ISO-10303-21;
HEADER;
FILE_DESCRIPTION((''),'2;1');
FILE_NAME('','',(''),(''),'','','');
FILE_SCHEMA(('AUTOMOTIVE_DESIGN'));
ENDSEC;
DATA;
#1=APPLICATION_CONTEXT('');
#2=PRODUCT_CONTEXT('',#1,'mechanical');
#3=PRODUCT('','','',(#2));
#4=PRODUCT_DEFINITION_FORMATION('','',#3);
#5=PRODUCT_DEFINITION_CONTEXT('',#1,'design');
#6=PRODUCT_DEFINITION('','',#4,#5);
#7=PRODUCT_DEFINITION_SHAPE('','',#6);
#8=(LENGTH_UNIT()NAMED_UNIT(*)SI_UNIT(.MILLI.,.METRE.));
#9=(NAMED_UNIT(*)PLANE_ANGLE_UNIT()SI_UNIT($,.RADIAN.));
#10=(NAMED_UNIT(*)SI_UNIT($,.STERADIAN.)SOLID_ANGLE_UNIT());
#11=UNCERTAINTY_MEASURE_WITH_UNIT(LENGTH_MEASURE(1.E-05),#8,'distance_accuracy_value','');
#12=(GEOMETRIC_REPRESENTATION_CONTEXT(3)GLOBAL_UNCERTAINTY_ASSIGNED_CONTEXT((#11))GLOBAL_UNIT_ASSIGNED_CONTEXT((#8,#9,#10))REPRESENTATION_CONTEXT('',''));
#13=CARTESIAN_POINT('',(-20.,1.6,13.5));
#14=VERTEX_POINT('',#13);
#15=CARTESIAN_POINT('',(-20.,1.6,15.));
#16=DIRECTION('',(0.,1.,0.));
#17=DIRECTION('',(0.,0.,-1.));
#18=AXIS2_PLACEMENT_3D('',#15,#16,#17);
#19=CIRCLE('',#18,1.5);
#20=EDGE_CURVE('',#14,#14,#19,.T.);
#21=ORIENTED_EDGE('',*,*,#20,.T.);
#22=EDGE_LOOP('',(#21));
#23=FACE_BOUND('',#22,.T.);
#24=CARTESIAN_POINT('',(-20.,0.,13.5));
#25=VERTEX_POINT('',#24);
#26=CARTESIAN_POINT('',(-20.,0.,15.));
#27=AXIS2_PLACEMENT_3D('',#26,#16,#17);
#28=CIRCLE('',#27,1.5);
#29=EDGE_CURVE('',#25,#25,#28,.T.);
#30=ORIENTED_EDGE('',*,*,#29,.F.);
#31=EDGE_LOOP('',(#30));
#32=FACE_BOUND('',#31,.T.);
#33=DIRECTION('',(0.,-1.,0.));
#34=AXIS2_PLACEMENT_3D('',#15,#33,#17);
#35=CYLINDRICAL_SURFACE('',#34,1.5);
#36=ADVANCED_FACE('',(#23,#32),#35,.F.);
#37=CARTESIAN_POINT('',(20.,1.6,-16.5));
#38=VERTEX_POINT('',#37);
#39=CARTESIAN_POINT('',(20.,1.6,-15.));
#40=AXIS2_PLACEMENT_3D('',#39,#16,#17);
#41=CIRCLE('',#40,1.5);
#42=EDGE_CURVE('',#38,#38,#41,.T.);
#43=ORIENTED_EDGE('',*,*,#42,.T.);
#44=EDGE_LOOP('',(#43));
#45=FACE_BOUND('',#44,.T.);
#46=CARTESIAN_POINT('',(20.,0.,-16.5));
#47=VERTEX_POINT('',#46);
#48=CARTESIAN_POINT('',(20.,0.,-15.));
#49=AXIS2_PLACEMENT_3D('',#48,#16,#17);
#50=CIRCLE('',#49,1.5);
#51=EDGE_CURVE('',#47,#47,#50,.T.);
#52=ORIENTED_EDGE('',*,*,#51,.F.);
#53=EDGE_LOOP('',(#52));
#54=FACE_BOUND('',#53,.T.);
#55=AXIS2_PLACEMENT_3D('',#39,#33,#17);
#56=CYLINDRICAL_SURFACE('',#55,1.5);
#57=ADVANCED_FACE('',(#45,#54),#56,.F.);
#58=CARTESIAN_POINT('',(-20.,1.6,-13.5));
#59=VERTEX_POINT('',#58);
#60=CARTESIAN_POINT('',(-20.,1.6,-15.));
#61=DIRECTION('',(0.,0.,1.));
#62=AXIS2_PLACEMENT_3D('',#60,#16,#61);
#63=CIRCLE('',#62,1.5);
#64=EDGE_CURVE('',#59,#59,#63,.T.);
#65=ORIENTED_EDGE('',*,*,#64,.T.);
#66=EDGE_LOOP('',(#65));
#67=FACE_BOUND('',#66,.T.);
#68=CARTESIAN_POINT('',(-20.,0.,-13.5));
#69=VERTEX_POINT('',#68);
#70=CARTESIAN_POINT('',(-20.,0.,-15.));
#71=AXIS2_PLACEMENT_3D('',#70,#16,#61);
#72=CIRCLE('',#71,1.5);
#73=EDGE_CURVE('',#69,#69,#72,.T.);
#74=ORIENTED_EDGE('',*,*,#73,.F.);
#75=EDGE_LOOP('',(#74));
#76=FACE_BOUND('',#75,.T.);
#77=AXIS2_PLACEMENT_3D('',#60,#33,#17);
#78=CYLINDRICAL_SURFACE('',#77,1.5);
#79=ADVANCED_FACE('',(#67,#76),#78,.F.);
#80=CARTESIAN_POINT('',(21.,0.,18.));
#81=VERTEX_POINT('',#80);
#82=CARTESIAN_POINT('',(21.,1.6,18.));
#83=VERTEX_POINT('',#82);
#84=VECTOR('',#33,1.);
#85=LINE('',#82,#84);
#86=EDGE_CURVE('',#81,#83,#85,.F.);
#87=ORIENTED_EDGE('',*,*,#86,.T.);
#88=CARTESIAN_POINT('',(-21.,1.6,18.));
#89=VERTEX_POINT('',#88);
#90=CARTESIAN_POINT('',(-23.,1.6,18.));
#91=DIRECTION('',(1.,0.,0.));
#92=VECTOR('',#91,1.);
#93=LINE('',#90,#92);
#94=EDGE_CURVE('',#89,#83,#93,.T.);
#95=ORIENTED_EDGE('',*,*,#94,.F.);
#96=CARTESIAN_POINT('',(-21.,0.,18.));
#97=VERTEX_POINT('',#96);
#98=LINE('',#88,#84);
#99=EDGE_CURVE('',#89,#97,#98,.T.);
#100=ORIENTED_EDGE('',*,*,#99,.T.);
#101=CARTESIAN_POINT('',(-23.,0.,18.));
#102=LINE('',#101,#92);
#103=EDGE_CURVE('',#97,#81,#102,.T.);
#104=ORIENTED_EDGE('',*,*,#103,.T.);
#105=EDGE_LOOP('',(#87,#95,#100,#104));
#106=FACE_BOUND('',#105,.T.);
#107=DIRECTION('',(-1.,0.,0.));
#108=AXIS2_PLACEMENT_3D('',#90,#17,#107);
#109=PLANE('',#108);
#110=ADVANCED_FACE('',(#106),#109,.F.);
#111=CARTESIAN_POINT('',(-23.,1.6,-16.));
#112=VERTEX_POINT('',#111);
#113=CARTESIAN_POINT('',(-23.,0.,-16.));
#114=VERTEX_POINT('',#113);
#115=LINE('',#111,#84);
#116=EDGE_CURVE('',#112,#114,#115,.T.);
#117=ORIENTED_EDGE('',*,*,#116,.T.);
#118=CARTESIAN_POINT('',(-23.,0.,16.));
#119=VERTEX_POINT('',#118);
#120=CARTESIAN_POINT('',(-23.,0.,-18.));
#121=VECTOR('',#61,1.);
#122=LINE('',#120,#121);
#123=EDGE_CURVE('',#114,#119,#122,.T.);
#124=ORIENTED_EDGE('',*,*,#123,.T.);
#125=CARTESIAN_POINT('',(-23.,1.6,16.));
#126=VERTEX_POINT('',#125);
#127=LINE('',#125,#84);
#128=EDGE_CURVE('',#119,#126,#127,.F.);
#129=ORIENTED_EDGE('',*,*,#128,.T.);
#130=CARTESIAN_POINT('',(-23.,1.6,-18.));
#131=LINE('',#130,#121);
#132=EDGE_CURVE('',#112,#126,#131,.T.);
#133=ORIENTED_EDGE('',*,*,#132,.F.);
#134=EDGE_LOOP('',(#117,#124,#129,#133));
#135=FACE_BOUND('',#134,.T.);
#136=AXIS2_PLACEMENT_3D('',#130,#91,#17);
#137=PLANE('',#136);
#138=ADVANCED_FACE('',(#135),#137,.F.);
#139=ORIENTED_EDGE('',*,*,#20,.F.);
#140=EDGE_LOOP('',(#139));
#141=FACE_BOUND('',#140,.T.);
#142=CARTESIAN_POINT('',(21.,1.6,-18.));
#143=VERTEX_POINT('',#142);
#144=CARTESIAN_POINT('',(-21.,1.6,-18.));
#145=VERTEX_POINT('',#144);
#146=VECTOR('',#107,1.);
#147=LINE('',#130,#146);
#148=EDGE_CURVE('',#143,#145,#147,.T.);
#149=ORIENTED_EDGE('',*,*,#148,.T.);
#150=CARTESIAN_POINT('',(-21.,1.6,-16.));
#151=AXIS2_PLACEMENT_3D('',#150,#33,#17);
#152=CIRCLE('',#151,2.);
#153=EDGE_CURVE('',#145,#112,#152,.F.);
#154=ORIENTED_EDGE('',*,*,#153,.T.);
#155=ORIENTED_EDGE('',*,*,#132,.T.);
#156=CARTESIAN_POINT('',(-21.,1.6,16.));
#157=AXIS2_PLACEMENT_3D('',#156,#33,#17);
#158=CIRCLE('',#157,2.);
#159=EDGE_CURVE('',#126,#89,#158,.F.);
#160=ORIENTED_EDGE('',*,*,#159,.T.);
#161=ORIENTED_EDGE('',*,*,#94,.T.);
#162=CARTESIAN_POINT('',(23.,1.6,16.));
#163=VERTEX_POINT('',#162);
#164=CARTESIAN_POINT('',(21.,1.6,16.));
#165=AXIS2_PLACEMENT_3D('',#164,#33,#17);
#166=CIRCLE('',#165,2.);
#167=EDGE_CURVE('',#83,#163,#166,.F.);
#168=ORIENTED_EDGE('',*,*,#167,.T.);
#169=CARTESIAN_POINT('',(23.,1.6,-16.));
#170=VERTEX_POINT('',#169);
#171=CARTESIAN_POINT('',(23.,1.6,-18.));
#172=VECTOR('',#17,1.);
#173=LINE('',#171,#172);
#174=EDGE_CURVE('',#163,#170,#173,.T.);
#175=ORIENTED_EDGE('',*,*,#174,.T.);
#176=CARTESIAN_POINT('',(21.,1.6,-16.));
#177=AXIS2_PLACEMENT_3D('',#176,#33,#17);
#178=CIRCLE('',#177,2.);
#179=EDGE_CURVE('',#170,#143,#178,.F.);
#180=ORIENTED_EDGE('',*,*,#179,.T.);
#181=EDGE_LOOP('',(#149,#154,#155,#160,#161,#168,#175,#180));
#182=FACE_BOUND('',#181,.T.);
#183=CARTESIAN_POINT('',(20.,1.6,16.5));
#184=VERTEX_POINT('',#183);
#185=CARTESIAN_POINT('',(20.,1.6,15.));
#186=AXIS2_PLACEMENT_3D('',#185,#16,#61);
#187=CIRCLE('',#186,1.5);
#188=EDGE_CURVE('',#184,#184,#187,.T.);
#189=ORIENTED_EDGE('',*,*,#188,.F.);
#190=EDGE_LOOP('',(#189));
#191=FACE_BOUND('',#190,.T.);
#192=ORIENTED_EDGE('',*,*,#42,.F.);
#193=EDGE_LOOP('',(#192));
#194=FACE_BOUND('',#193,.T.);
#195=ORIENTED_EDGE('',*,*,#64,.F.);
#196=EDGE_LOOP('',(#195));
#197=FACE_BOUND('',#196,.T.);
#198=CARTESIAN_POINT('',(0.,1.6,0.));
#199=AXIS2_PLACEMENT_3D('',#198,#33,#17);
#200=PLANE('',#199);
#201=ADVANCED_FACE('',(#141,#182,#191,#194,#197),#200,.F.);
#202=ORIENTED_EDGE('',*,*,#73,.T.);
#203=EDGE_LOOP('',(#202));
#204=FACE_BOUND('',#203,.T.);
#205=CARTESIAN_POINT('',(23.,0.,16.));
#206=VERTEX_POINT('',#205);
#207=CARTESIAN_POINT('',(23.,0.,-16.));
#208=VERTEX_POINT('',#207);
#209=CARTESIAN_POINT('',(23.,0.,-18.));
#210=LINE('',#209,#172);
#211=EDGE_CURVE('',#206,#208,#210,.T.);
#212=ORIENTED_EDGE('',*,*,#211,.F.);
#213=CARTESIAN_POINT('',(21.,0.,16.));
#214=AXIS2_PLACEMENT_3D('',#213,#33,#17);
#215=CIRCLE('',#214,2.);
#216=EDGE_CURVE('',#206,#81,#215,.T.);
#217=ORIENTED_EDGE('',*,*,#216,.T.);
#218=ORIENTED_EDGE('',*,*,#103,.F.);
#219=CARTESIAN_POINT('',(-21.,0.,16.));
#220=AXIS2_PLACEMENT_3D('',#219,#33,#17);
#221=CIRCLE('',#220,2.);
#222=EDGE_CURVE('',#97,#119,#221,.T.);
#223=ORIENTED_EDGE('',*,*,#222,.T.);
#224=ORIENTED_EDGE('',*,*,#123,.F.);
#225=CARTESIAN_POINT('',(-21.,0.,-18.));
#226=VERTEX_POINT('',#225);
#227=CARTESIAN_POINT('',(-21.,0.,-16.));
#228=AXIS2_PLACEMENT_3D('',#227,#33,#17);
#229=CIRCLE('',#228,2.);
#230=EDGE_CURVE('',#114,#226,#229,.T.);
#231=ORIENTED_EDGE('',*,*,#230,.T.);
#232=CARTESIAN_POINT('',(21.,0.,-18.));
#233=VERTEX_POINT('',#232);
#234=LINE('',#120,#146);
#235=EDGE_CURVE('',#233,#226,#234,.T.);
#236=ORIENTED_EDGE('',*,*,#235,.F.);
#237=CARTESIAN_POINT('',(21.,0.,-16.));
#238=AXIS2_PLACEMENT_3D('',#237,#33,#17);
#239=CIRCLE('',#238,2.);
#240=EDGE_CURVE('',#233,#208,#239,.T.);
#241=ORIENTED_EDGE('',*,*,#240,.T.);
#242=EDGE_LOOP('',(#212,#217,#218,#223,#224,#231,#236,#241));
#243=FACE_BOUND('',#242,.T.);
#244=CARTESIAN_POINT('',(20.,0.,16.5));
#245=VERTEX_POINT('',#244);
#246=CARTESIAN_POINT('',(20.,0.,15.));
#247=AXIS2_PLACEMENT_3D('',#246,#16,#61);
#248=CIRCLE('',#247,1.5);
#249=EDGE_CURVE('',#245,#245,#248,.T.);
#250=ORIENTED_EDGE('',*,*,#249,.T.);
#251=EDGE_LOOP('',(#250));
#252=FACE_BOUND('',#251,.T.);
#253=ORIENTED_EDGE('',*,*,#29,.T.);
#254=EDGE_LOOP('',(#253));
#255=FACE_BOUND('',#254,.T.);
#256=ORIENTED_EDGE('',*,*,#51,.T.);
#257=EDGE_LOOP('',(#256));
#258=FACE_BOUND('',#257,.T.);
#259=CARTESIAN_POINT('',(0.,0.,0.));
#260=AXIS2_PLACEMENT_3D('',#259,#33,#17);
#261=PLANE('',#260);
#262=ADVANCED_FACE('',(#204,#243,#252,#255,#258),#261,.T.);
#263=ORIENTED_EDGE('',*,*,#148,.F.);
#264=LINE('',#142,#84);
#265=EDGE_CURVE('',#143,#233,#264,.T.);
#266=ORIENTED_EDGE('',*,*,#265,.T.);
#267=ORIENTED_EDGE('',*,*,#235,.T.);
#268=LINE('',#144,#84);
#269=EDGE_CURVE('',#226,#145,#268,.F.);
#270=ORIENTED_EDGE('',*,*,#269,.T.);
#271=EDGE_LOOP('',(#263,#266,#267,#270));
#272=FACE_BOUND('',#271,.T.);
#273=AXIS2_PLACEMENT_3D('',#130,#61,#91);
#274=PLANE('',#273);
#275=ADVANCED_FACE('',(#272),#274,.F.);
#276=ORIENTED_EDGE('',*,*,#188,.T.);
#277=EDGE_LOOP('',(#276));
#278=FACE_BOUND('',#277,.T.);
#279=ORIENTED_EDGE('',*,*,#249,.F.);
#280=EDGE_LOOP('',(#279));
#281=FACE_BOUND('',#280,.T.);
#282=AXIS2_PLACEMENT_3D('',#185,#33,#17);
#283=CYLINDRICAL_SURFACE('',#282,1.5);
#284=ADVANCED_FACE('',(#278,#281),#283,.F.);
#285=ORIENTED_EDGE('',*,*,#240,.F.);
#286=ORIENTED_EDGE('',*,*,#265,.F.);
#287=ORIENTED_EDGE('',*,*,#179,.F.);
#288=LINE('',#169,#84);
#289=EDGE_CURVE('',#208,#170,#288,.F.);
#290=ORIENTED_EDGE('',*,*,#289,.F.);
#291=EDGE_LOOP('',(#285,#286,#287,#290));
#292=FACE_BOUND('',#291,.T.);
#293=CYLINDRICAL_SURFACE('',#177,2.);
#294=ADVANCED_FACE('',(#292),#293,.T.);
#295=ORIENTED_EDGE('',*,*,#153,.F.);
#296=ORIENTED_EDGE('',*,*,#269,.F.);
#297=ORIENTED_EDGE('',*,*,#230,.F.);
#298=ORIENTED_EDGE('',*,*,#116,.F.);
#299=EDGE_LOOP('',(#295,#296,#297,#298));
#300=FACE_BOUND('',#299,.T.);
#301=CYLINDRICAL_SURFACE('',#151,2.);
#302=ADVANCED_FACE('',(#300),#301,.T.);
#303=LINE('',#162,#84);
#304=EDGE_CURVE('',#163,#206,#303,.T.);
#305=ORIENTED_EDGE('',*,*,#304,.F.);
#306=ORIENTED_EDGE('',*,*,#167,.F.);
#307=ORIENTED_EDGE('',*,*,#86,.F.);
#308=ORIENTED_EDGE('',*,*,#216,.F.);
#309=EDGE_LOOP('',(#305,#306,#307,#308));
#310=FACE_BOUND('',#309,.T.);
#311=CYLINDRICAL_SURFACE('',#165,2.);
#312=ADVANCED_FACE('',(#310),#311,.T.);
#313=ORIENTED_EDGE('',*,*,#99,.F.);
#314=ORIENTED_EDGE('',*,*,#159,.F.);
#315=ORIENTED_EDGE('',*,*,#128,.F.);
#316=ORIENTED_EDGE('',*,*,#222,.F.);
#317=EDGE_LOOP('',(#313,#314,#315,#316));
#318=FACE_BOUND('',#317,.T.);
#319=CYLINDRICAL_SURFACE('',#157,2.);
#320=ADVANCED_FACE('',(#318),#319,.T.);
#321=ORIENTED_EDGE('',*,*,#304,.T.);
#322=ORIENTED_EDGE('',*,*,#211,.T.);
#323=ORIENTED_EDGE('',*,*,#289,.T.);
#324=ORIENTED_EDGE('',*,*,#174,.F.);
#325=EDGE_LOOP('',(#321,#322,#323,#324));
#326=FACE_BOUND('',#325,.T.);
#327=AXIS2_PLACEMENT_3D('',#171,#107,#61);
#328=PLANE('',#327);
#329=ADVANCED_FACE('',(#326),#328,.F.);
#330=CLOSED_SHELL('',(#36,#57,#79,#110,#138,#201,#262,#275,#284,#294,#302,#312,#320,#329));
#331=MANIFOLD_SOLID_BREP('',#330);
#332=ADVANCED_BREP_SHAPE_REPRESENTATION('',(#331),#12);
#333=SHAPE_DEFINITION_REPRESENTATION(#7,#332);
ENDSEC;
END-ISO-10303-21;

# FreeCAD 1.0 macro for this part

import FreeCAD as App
import Part
import Sketcher

V = App.Vector


def edges_at(feature, points):
    """Names of the edges that pass closest to the given points."""
    edges = feature.Shape.Edges
    near = lambda p: min(range(len(edges)), key=lambda i: edges[i].distToShape(Part.Vertex(*p))[0])
    return sorted({f"Edge{near(p) + 1}" for p in points})

doc = App.newDocument("Part")
body = doc.addObject("PartDesign::Body", "Body")

sketch1 = doc.addObject("Sketcher::SketchObject", "Sketch")
body.addObject(sketch1)
sketch1.AttachmentSupport = (doc.XZ_Plane, [""])
sketch1.MapMode = "FlatFace"
sketch1.addGeometry([
    Part.LineSegment(V(-23, -18, 0), V(-23, 18, 0)),
    Part.LineSegment(V(-23, 18, 0), V(23, 18, 0)),
    Part.LineSegment(V(23, 18, 0), V(23, -18, 0)),
    Part.LineSegment(V(23, -18, 0), V(-23, -18, 0)),
    Part.Circle(V(-20, 15, 0), V(0, 0, 1), 1.5),
    Part.Circle(V(20, 15, 0), V(0, 0, 1), 1.5),
    Part.Circle(V(-20, -15, 0), V(0, 0, 1), 1.5),
    Part.Circle(V(20, -15, 0), V(0, 0, 1), 1.5),
], False)
sketch1.addConstraint([
    Sketcher.Constraint("Coincident", 0, 2, 1, 1),
    Sketcher.Constraint("Coincident", 1, 2, 2, 1),
    Sketcher.Constraint("Coincident", 2, 2, 3, 1),
    Sketcher.Constraint("Coincident", 3, 2, 0, 1),
    Sketcher.Constraint("Vertical", 0),
    Sketcher.Constraint("Horizontal", 1),
    Sketcher.Constraint("Vertical", 2),
    Sketcher.Constraint("Horizontal", 3),
    Sketcher.Constraint("Equal", 4, 5),
    Sketcher.Constraint("Equal", 5, 6),
    Sketcher.Constraint("Equal", 6, 7),
    Sketcher.Constraint("Symmetric", 5, 3, 6, 3, -1, 1),
    Sketcher.Constraint("Symmetric", 4, 3, 7, 3, -1, 1),
    Sketcher.Constraint("Symmetric", 0, 2, 2, 2, -1, 1),
    Sketcher.Constraint("Symmetric", 4, 3, 5, 3, -2),
    Sketcher.Constraint("Diameter", 4, 3.0),
    Sketcher.Constraint("DistanceX", 1, 1, 1, 2, 46.0),
    Sketcher.Constraint("DistanceY", 0, 1, 0, 2, 36.0),
    Sketcher.Constraint("DistanceX", 4, 3, -1, 1, 20.0),
    Sketcher.Constraint("DistanceY", -1, 1, 4, 3, 15.0),
])
pad1 = doc.addObject("PartDesign::Pad", "Pad")
body.addObject(pad1)
pad1.Profile = sketch1
pad1.Length = 1.6
pad1.Reversed = True
doc.recompute()

fillet = doc.addObject("PartDesign::Fillet", "Fillet")
body.addObject(fillet)
fillet.Base = (pad1, edges_at(pad1, [
    (23, 0.8, -18),
    (23, 0.8, 18),
    (-23, 0.8, 18),
    (-23, 0.8, -18),
]))
fillet.Radius = 2

doc.recompute()
